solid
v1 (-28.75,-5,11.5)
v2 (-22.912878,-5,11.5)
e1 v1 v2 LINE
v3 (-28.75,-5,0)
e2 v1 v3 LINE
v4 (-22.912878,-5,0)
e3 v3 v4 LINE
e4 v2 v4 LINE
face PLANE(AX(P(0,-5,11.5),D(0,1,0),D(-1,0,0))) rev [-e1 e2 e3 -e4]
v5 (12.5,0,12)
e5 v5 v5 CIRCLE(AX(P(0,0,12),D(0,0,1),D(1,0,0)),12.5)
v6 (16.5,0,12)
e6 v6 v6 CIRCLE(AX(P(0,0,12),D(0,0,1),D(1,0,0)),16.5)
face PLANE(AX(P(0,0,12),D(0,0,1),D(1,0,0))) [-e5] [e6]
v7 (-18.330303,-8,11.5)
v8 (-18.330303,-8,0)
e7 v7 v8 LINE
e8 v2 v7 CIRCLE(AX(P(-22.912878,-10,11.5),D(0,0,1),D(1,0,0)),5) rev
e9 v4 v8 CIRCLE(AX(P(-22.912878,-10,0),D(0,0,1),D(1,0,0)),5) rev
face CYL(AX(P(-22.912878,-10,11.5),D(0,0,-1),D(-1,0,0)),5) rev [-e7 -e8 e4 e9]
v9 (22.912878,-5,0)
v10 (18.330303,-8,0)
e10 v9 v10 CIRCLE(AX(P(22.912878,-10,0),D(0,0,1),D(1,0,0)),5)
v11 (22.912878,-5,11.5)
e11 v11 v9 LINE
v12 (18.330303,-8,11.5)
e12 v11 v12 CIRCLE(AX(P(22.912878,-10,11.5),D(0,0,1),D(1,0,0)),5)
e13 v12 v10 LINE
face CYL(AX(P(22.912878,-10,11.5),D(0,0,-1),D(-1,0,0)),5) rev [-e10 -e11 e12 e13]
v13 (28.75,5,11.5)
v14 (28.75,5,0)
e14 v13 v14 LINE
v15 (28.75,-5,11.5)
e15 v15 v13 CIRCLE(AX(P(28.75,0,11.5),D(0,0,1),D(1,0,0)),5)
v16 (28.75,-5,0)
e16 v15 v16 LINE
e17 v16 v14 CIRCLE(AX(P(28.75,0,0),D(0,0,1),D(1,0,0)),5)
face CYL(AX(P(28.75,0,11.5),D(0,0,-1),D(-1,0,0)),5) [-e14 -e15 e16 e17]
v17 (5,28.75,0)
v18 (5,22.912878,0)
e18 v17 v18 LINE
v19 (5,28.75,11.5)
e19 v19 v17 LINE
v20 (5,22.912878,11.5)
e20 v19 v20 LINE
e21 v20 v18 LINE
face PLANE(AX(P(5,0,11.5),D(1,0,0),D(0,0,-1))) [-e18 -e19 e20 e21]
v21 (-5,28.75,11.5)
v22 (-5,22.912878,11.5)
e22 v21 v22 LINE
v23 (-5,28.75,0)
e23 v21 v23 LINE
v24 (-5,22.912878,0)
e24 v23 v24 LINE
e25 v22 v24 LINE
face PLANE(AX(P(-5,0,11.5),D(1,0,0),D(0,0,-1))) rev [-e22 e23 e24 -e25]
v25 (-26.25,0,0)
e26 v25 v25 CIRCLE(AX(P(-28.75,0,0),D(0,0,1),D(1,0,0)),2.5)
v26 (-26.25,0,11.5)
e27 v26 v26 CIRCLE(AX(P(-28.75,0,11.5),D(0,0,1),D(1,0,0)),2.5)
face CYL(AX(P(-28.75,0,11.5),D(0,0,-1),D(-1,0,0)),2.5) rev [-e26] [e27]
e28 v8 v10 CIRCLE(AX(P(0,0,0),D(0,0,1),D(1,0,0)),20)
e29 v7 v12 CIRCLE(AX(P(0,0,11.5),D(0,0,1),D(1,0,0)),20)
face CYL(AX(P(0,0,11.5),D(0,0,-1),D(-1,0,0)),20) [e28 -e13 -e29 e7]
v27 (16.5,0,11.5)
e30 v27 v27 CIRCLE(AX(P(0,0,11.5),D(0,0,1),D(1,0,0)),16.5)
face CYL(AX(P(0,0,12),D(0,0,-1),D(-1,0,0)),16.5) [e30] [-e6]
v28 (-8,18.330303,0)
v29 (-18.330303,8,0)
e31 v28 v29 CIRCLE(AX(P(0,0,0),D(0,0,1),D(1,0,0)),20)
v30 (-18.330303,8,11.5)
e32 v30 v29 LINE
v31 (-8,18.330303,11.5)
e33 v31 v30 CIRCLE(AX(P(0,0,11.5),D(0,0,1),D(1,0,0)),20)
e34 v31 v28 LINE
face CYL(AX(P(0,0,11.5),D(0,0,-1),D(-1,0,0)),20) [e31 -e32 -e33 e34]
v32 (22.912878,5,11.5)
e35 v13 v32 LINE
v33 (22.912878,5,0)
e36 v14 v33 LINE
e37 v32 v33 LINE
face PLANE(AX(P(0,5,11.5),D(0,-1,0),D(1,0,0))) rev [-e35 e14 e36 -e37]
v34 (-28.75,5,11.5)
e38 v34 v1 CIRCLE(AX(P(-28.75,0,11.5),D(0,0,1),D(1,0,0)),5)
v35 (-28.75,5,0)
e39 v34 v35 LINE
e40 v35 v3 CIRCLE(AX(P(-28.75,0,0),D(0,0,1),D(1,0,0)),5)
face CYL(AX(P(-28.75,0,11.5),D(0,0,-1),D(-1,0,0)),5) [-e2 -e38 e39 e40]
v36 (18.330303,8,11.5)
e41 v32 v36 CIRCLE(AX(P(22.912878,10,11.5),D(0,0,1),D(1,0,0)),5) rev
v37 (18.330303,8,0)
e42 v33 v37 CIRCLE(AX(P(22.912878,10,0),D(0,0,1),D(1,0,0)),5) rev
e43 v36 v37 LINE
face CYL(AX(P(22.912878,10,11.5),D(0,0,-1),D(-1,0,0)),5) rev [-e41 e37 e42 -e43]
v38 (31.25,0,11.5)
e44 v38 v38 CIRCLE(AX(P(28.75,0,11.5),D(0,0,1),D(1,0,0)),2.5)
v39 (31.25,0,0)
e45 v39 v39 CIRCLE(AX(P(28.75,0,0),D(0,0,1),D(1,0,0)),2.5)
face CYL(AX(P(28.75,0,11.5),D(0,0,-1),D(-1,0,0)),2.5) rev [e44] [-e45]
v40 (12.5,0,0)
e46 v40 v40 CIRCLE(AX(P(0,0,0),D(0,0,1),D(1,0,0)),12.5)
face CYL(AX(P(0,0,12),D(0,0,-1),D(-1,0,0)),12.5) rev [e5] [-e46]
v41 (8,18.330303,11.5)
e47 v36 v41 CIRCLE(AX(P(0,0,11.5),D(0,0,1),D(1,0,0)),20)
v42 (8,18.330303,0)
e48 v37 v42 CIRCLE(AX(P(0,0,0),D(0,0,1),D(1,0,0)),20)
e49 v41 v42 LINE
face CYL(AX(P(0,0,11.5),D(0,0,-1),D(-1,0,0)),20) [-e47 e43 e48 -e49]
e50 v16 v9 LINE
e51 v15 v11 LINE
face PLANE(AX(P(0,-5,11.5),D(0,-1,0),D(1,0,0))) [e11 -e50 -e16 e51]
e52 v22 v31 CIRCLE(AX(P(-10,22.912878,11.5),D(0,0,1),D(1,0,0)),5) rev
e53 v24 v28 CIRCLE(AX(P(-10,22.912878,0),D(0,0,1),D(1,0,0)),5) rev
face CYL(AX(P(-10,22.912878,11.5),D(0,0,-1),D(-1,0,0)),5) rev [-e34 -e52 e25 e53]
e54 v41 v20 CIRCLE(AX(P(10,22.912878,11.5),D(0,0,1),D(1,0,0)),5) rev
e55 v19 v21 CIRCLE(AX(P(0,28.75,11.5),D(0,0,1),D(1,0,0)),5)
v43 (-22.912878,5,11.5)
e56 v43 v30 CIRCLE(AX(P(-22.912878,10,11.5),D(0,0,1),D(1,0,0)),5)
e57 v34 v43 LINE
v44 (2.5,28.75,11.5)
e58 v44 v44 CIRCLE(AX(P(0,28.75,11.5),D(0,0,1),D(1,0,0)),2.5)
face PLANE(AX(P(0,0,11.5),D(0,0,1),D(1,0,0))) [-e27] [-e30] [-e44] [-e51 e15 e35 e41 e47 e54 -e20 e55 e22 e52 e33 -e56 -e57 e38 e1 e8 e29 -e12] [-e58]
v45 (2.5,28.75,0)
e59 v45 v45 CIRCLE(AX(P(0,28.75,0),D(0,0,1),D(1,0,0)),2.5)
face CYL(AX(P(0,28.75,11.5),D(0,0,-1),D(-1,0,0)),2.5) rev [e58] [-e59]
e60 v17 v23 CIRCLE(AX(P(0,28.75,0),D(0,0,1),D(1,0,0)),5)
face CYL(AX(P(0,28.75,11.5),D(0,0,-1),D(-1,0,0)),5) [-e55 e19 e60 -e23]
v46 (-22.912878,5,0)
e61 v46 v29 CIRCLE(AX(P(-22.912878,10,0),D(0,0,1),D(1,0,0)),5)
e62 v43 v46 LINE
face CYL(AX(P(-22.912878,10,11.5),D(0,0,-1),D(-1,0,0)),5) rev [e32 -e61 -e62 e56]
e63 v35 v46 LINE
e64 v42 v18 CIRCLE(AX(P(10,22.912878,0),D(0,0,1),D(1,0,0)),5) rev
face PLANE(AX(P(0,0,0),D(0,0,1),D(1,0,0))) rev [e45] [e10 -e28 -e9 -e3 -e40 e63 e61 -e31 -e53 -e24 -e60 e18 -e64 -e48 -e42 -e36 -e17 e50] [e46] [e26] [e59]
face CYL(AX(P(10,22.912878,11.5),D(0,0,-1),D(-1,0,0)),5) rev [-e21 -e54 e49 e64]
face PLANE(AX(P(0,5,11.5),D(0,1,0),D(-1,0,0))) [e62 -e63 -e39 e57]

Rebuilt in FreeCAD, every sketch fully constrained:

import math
import FreeCAD as App
import Part
import Sketcher

doc = App.newDocument("Part")
body = doc.addObject("PartDesign::Body", "Body")

sketch1 = doc.addObject("Sketcher::SketchObject", "Sketch")
body.addObject(sketch1)
sketch1.AttachmentSupport = (doc.XY_Plane, [""])
sketch1.MapMode = "FlatFace"
sketch1.addGeometry([
    Part.ArcOfCircle(Part.Circle(App.Vector(0, 0, 0), App.Vector(0, 0, 1), 20), math.radians(24), math.radians(66)),
    Part.ArcOfCircle(Part.Circle(App.Vector(10, 22.9, 0), App.Vector(0, 0, 1), 5), math.radians(180), math.radians(246)),
    Part.LineSegment(App.Vector(5, 22.9, 0), App.Vector(5, 28.8, 0)),
    Part.ArcOfCircle(Part.Circle(App.Vector(0, 28.8, 0), App.Vector(0, 0, 1), 5), math.radians(0), math.radians(180)),
    Part.LineSegment(App.Vector(-5, 28.8, 0), App.Vector(-5, 22.9, 0)),
    Part.ArcOfCircle(Part.Circle(App.Vector(-10, 22.9, 0), App.Vector(0, 0, 1), 5), math.radians(-66), math.radians(0)),
    Part.ArcOfCircle(Part.Circle(App.Vector(0, 0, 0), App.Vector(0, 0, 1), 20), math.radians(114), math.radians(156)),
    Part.ArcOfCircle(Part.Circle(App.Vector(-22.9, 10, 0), App.Vector(0, 0, 1), 5), math.radians(-90), math.radians(-24)),
    Part.LineSegment(App.Vector(-22.9, 5, 0), App.Vector(-28.8, 5, 0)),
    Part.ArcOfCircle(Part.Circle(App.Vector(-28.8, 0, 0), App.Vector(0, 0, 1), 5), math.radians(90), math.radians(270)),
    Part.LineSegment(App.Vector(-28.8, -5, 0), App.Vector(-22.9, -5, 0)),
    Part.ArcOfCircle(Part.Circle(App.Vector(-22.9, -10, 0), App.Vector(0, 0, 1), 5), math.radians(24), math.radians(90)),
    Part.ArcOfCircle(Part.Circle(App.Vector(0, 0, 0), App.Vector(0, 0, 1), 20), math.radians(-156), math.radians(-24)),
    Part.ArcOfCircle(Part.Circle(App.Vector(22.9, -10, 0), App.Vector(0, 0, 1), 5), math.radians(90), math.radians(156)),
    Part.LineSegment(App.Vector(22.9, -5, 0), App.Vector(28.8, -5, 0)),
    Part.ArcOfCircle(Part.Circle(App.Vector(28.8, 0, 0), App.Vector(0, 0, 1), 5), math.radians(-90), math.radians(90)),
    Part.LineSegment(App.Vector(28.8, 5, 0), App.Vector(22.9, 5, 0)),
    Part.ArcOfCircle(Part.Circle(App.Vector(22.9, 10, 0), App.Vector(0, 0, 1), 5), math.radians(-156), math.radians(-90)),
    Part.Circle(App.Vector(-28.8, 0, 0), App.Vector(0, 0, 1), 2.5),
    Part.Circle(App.Vector(0, 0, 0), App.Vector(0, 0, 1), 16.5),
    Part.Circle(App.Vector(28.8, 0, 0), App.Vector(0, 0, 1), 2.5),
    Part.Circle(App.Vector(0, 28.8, 0), App.Vector(0, 0, 1), 2.5),
], False)
sketch1.addConstraint([
    Sketcher.Constraint("Tangent", 0, 2, 1, 2),
    Sketcher.Constraint("Tangent", 1, 1, 2, 1),
    Sketcher.Constraint("Tangent", 2, 2, 3, 1),
    Sketcher.Constraint("Tangent", 3, 2, 4, 1),
    Sketcher.Constraint("Tangent", 4, 2, 5, 2),
    Sketcher.Constraint("Tangent", 5, 1, 6, 1),
    Sketcher.Constraint("Tangent", 6, 2, 7, 2),
    Sketcher.Constraint("Tangent", 7, 1, 8, 1),
    Sketcher.Constraint("Tangent", 8, 2, 9, 1),
    Sketcher.Constraint("Tangent", 9, 2, 10, 1),
    Sketcher.Constraint("Tangent", 10, 2, 11, 2),
    Sketcher.Constraint("Tangent", 11, 1, 12, 1),
    Sketcher.Constraint("Tangent", 12, 2, 13, 2),
    Sketcher.Constraint("Tangent", 13, 1, 14, 1),
    Sketcher.Constraint("Tangent", 14, 2, 15, 1),
    Sketcher.Constraint("Tangent", 15, 2, 16, 1),
    Sketcher.Constraint("Tangent", 16, 2, 17, 2),
    Sketcher.Constraint("Tangent", 17, 1, 0, 1),
    Sketcher.Constraint("Vertical", 2),
    Sketcher.Constraint("Vertical", 4),
    Sketcher.Constraint("Horizontal", 8),
    Sketcher.Constraint("Horizontal", 10),
    Sketcher.Constraint("Horizontal", 14),
    Sketcher.Constraint("Horizontal", 16),
    Sketcher.Constraint("Coincident", 0, 3, -1, 1),
    Sketcher.Constraint("Coincident", 6, 3, -1, 1),
    Sketcher.Constraint("Coincident", 12, 3, -1, 1),
    Sketcher.Constraint("Coincident", 19, 3, -1, 1),
    Sketcher.Constraint("Coincident", 18, 3, 9, 3),
    Sketcher.Constraint("Coincident", 20, 3, 15, 3),
    Sketcher.Constraint("Coincident", 21, 3, 3, 3),
    Sketcher.Constraint("Equal", 1, 3),
    Sketcher.Constraint("Equal", 3, 5),
    Sketcher.Constraint("Equal", 0, 6),
    Sketcher.Constraint("Equal", 5, 7),
    Sketcher.Constraint("Equal", 7, 9),
    Sketcher.Constraint("Equal", 9, 11),
    Sketcher.Constraint("Equal", 6, 12),
    Sketcher.Constraint("Equal", 11, 13),
    Sketcher.Constraint("Equal", 13, 15),
    Sketcher.Constraint("Equal", 15, 17),
    Sketcher.Constraint("Equal", 18, 20),
    Sketcher.Constraint("Equal", 20, 21),
    Sketcher.Constraint("Symmetric", 9, 3, 15, 3, -1, 1),
    Sketcher.Constraint("PointOnObject", 3, 3, -2),
    Sketcher.Constraint("PointOnObject", 9, 3, -1),
    Sketcher.Constraint("Equal", 16, 2),
    Sketcher.Constraint("Diameter", 18, 5.0),
    Sketcher.Constraint("Diameter", 19, 33.0),
    Sketcher.Constraint("Radius", 0, 20.0),
    Sketcher.Constraint("Radius", 1, 5.0),
    Sketcher.Constraint("DistanceY", -1, 1, 3, 3, 28.75),
])
pad1 = doc.addObject("PartDesign::Pad", "Pad")
body.addObject(pad1)
pad1.Profile = sketch1
pad1.Length = 11.5

sketch2 = doc.addObject("Sketcher::SketchObject", "Sketch001")
body.addObject(sketch2)
sketch2.AttachmentSupport = (doc.XY_Plane, [""])
sketch2.MapMode = "FlatFace"
sketch2.addGeometry([
    Part.Circle(App.Vector(0, 0, 0), App.Vector(0, 0, 1), 16),
    Part.Circle(App.Vector(0, 0, 0), App.Vector(0, 0, 1), 12),
], False)
sketch2.addConstraint([
    Sketcher.Constraint("Coincident", 0, 3, -1, 1),
    Sketcher.Constraint("Coincident", 1, 3, -1, 1),
    Sketcher.Constraint("Diameter", 0, 33.0),
    Sketcher.Constraint("Diameter", 1, 25.0),
])
pad2 = doc.addObject("PartDesign::Pad", "Pad001")
body.addObject(pad2)
pad2.Profile = sketch2
pad2.Length = 12

doc.recompute()
